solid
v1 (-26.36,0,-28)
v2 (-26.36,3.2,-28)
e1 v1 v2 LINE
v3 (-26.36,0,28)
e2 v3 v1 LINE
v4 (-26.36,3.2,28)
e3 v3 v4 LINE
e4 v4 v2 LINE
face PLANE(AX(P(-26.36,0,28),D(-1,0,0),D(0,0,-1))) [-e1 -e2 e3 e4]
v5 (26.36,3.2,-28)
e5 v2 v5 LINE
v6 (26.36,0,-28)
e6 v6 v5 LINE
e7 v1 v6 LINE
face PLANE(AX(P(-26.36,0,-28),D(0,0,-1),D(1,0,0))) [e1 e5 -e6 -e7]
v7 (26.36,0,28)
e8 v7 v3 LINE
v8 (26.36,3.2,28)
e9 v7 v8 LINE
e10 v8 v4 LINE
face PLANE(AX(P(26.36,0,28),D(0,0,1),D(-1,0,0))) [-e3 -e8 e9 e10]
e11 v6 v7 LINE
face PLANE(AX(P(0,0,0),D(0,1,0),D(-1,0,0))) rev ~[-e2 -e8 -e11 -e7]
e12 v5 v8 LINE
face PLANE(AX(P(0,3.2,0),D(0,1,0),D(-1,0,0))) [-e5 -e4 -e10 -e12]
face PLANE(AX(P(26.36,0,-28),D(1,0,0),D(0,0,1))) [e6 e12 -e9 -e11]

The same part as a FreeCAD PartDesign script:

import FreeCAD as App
import Part
import Sketcher
from FreeCAD import Vector
Q = App.Units.Quantity

doc = App.newDocument("Part")
body = doc.addObject("PartDesign::Body", "Body")

sketch1 = body.newObject("Sketcher::SketchObject", "Sketch")
sketch1.AttachmentSupport = (doc.getObject("XZ_Plane"), [""])
sketch1.MapMode = "FlatFace"
sketch1.addGeometry([
    Part.LineSegment(Vector(-26, 28, 0), Vector(26, 28, 0)),
    Part.LineSegment(Vector(26, 28, 0), Vector(26, -28, 0)),
    Part.LineSegment(Vector(26, -28, 0), Vector(-26, -28, 0)),
    Part.LineSegment(Vector(-26, -28, 0), Vector(-26, 28, 0)),
], False)
sketch1.addConstraint([
    Sketcher.Constraint("Coincident", 0, 2, 1, 1),
    Sketcher.Constraint("Coincident", 1, 2, 2, 1),
    Sketcher.Constraint("Coincident", 2, 2, 3, 1),
    Sketcher.Constraint("Coincident", 3, 2, 0, 1),
    Sketcher.Constraint("Horizontal", 0),
    Sketcher.Constraint("Vertical", 1),
    Sketcher.Constraint("Horizontal", 2),
    Sketcher.Constraint("Vertical", 3),
    Sketcher.Constraint("Symmetric", 0, 2, 2, 2, -1, 1),
    Sketcher.Constraint("DistanceY", 1, 2, 1, 1, Q("56 mm")),
    Sketcher.Constraint("DistanceX", 0, 1, 0, 2, Q("52.72 mm")),
])
pad1 = body.newObject("PartDesign::Pad", "Pad")
pad1.Profile = sketch1
pad1.Length = 3.2
pad1.Reversed = True

doc.recompute()
